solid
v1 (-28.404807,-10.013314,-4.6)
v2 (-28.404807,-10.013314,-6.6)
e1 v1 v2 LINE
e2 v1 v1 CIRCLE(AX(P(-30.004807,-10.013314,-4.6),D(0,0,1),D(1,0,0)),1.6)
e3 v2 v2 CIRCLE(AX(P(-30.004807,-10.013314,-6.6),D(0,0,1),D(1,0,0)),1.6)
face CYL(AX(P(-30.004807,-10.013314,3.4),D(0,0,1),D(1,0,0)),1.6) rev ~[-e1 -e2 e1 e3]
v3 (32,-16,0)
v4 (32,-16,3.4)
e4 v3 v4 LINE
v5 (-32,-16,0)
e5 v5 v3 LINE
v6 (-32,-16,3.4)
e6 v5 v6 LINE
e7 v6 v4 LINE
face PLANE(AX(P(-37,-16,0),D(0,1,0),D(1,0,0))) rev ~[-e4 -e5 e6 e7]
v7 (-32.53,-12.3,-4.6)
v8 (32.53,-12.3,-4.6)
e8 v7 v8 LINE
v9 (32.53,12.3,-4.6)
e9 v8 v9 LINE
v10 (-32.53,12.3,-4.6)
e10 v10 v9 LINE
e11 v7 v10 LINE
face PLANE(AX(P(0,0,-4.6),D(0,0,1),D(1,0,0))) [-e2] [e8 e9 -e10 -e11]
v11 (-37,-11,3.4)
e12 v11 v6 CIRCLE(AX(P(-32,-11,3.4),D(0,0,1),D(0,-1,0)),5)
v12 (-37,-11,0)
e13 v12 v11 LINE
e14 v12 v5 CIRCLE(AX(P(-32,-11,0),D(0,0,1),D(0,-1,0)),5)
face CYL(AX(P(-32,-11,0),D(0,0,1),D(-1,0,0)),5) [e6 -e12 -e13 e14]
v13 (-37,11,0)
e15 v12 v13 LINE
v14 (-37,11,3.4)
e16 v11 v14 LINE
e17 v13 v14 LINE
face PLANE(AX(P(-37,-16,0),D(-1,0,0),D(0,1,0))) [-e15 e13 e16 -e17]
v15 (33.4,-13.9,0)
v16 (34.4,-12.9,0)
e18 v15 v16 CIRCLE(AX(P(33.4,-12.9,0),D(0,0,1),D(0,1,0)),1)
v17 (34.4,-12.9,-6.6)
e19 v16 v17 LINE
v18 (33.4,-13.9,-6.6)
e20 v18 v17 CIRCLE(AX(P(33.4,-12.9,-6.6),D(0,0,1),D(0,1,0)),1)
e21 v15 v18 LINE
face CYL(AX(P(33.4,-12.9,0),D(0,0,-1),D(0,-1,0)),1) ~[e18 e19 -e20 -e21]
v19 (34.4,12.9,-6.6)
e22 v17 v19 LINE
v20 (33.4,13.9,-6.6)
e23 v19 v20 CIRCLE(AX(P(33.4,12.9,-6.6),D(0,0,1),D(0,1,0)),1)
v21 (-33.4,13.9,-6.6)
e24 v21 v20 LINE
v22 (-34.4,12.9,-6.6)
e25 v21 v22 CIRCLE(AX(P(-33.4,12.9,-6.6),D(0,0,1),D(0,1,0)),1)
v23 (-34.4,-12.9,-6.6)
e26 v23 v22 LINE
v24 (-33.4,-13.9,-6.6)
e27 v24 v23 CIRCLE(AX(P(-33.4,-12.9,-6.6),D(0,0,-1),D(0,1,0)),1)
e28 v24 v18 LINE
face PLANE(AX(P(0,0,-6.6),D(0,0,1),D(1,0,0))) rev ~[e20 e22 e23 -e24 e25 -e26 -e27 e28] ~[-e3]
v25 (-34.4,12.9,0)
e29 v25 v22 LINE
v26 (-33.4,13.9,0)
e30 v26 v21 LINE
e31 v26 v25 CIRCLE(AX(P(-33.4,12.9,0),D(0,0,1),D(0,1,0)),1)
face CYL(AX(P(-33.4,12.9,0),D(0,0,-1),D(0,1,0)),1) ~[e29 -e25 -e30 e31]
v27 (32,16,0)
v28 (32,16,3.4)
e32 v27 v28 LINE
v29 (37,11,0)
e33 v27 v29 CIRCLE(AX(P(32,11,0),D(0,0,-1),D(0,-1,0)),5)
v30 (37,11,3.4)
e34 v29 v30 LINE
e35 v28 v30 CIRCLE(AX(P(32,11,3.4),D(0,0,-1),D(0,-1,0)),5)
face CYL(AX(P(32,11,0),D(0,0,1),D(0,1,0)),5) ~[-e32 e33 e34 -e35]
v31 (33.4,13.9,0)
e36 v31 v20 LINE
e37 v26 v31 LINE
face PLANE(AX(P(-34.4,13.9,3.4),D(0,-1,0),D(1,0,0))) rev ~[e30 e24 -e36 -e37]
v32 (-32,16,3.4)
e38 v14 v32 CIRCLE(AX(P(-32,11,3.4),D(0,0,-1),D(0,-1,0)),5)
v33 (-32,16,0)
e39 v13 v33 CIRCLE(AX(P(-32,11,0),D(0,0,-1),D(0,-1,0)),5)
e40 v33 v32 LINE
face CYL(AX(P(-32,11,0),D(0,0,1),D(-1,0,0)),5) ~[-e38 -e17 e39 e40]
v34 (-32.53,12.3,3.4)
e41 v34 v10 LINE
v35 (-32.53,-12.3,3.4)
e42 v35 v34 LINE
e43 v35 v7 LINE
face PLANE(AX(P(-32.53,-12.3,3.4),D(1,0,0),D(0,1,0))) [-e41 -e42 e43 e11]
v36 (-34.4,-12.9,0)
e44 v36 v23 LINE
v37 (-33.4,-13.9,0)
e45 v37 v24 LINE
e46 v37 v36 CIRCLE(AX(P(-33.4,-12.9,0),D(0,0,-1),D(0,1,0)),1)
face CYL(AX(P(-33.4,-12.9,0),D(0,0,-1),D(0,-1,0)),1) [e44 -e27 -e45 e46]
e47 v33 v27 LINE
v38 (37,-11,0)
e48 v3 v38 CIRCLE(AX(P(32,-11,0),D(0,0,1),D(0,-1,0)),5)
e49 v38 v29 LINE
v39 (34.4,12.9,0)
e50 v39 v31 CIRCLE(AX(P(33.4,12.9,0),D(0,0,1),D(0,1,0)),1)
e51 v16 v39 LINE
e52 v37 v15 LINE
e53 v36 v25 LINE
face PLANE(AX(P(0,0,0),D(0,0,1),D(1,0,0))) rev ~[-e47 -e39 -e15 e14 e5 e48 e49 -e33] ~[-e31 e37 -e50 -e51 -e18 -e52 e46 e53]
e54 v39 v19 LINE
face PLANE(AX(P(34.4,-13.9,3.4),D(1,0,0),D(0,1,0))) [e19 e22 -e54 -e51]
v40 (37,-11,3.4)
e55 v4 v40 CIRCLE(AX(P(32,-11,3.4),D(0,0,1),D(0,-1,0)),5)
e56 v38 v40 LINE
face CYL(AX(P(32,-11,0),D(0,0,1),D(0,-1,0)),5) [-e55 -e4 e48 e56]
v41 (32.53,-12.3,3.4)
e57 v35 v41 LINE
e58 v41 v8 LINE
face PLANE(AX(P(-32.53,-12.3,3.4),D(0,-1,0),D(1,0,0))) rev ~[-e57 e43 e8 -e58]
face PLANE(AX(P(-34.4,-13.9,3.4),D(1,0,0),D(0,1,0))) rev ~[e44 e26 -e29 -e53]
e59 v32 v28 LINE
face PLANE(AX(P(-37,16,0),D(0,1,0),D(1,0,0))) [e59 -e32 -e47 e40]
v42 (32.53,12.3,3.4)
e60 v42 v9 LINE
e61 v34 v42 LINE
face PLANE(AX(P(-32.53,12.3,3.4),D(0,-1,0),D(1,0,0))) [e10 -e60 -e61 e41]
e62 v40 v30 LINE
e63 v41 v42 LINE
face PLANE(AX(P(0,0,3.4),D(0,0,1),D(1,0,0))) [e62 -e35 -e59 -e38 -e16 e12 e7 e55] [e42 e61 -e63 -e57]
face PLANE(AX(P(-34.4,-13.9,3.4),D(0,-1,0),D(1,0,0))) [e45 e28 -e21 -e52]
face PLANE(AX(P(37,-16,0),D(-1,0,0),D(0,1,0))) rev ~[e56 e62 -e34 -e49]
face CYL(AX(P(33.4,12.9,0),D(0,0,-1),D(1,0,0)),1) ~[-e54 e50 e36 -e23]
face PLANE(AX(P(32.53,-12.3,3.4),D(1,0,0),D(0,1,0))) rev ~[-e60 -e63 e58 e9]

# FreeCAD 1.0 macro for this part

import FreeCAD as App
import Part
import Sketcher
from FreeCAD import Vector


def edges_at(feature, points):
    """Names of the edges that pass closest to the given points."""
    edges = feature.Shape.Edges
    near = lambda p: min(range(len(edges)), key=lambda i: edges[i].distToShape(Part.Vertex(*p))[0])
    return sorted({f"Edge{near(p) + 1}" for p in points})


def add_polygon(sketch, points):
    """Adds a closed chain of lines whose ends are joined by coincident constraints."""
    first, n = sketch.GeometryCount, len(points)
    for a, b in zip(points, points[1:] + points[:1]):
        sketch.addGeometry(Part.LineSegment(App.Vector(*a, 0), App.Vector(*b, 0)), False)
    for i in range(n):
        sketch.addConstraint(Sketcher.Constraint("Coincident", first + i, 2, first + (i + 1) % n, 1))

doc = App.newDocument("Part")
body = doc.addObject("PartDesign::Body", "Body")

sketch1 = body.newObject("Sketcher::SketchObject", "Sketch")
sketch1.AttachmentSupport = (doc.getObject("XY_Plane"), [""])
sketch1.MapMode = "FlatFace"
add_polygon(sketch1, [(-37, 16), (-37, -16), (37, -16), (37, 16)])
sketch1.addConstraint(Sketcher.Constraint("Vertical", 0))
sketch1.addConstraint(Sketcher.Constraint("Horizontal", 1))
sketch1.addConstraint(Sketcher.Constraint("Vertical", 2))
sketch1.addConstraint(Sketcher.Constraint("Horizontal", 3))
sketch1.addConstraint(Sketcher.Constraint("Symmetric", 0, 2, 2, 2, -1, 1))
sketch1.addConstraint(Sketcher.Constraint("DistanceX", 1, 1, 1, 2, 74.0))
sketch1.addConstraint(Sketcher.Constraint("DistanceY", 0, 2, 0, 1, 32.0))
pad1 = body.newObject("PartDesign::Pad", "Pad")
pad1.Profile = sketch1
pad1.Length = 3.4

sketch2 = body.newObject("Sketcher::SketchObject", "Sketch001")
sketch2.AttachmentSupport = (doc.getObject("XY_Plane"), [""])
sketch2.MapMode = "FlatFace"
sketch2.AttachmentOffset = App.Placement(Vector(0, 0, 3.4), App.Rotation())
add_polygon(sketch2, [(-34, 14), (-34, -14), (34, -14), (34, 14)])
sketch2.addConstraint(Sketcher.Constraint("Vertical", 0))
sketch2.addConstraint(Sketcher.Constraint("Horizontal", 1))
sketch2.addConstraint(Sketcher.Constraint("Vertical", 2))
sketch2.addConstraint(Sketcher.Constraint("Horizontal", 3))
sketch2.addConstraint(Sketcher.Constraint("Symmetric", 0, 2, 2, 2, -1, 1))
sketch2.addConstraint(Sketcher.Constraint("DistanceX", 1, 1, 1, 2, 68.8))
sketch2.addConstraint(Sketcher.Constraint("DistanceY", 0, 2, 0, 1, 27.8))
pad2 = body.newObject("PartDesign::Pad", "Pad001")
pad2.Profile = sketch2
pad2.Length = 10
pad2.Reversed = True

sketch3 = body.newObject("Sketcher::SketchObject", "Sketch002")
sketch3.AttachmentSupport = (doc.getObject("XY_Plane"), [""])
sketch3.MapMode = "FlatFace"
sketch3.AttachmentOffset = App.Placement(Vector(0, 0, 3.4), App.Rotation())
add_polygon(sketch3, [(-33, 12), (-33, -12), (33, -12), (33, 12)])
sketch3.addConstraint(Sketcher.Constraint("Vertical", 0))
sketch3.addConstraint(Sketcher.Constraint("Horizontal", 1))
sketch3.addConstraint(Sketcher.Constraint("Vertical", 2))
sketch3.addConstraint(Sketcher.Constraint("Horizontal", 3))
sketch3.addConstraint(Sketcher.Constraint("Symmetric", 0, 2, 2, 2, -1, 1))
sketch3.addConstraint(Sketcher.Constraint("DistanceY", 0, 2, 0, 1, 24.6))
sketch3.addConstraint(Sketcher.Constraint("DistanceX", 1, 1, 1, 2, 65.06))
pocket1 = body.newObject("PartDesign::Pocket", "Pocket")
pocket1.Profile = sketch3
pocket1.Length = 8
doc.recompute()

fillet = body.newObject("PartDesign::Fillet", "Fillet")
fillet.Base = (pocket1, edges_at(pocket1, [
    (-37, -16, 1.7),
    (37, -16, 1.7),
    (37, 16, 1.7),
    (-37, 16, 1.7),
]))
fillet.Radius = 5

sketch4 = body.newObject("Sketcher::SketchObject", "Sketch003")
sketch4.AttachmentSupport = (doc.getObject("XY_Plane"), [""])
sketch4.MapMode = "FlatFace"
sketch4.AttachmentOffset = App.Placement(Vector(0, 0, 3.4), App.Rotation())
sketch4.addGeometry(Part.Circle(Vector(-30, -10, 0), Vector(0, 0, 1), 1.6), False)
sketch4.addConstraint(Sketcher.Constraint("Diameter", 0, 3.2))
sketch4.addConstraint(Sketcher.Constraint("DistanceX", 0, 3, -1, 1, 30.004807))
sketch4.addConstraint(Sketcher.Constraint("DistanceY", 0, 3, -1, 1, 10.013314))
pocket2 = body.newObject("PartDesign::Pocket", "Pocket001")
pocket2.Profile = sketch4
pocket2.Type = "ThroughAll"
doc.recompute()

fillet2 = body.newObject("PartDesign::Fillet", "Fillet001")
fillet2.Base = (pocket2, edges_at(pocket2, [
    (-34.4, 13.9, -3.3),
    (-34.4, -13.9, -3.3),
    (34.4, -13.9, -3.3),
    (34.4, 13.9, -3.3),
]))
fillet2.Radius = 1

doc.recompute()
